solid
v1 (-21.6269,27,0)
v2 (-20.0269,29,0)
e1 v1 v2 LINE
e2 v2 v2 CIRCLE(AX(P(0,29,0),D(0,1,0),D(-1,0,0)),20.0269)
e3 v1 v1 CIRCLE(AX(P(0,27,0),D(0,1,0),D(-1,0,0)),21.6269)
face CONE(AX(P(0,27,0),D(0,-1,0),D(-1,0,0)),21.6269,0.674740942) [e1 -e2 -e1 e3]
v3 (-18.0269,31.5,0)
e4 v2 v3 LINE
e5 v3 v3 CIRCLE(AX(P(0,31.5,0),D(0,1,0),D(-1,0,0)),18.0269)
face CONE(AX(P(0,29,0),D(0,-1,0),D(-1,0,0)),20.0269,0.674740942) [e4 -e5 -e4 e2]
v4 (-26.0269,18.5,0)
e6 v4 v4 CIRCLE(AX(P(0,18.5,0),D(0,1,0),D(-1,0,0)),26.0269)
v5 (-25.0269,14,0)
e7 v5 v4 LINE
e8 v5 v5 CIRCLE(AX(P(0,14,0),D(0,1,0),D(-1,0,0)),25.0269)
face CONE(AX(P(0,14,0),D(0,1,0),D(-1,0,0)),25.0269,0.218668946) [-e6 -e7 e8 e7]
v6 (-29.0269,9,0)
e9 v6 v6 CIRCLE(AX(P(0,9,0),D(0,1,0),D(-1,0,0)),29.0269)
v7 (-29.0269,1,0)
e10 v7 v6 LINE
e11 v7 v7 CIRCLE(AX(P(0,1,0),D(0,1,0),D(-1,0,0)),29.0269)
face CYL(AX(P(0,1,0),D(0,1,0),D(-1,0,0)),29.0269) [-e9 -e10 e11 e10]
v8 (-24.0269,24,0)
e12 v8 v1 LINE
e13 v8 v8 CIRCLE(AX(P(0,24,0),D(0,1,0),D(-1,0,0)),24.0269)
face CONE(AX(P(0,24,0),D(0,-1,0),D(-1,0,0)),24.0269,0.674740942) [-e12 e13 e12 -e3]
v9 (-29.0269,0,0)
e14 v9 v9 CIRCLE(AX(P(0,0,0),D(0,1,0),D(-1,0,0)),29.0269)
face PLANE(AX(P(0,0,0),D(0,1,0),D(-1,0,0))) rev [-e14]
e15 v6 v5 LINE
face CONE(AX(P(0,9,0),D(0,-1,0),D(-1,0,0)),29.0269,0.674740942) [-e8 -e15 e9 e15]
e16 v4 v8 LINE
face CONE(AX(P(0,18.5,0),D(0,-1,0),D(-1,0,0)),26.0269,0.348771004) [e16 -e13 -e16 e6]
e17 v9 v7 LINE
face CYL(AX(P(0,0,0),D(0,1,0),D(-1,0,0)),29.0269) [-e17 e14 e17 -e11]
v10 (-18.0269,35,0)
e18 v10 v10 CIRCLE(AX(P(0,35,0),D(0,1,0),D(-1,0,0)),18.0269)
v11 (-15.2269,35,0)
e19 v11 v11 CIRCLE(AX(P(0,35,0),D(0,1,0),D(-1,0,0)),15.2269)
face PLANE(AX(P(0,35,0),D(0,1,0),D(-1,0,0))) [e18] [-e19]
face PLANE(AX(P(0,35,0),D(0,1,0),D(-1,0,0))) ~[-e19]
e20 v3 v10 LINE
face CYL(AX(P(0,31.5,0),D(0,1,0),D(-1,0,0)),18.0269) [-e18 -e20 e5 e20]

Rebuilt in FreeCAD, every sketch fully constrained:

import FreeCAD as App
import Part
import Sketcher
Q = App.Units.Quantity

doc = App.newDocument("Part")
body = doc.addObject("PartDesign::Body", "Body")

# Sketch on XY plane
sketch1 = body.newObject("Sketcher::SketchObject", "Sketch")
sketch1.AttachmentSupport = (doc.getObject("XY_Plane"), [""])
sketch1.MapMode = "FlatFace"
sketch1.addGeometry([
    Part.LineSegment(App.Vector(-29, 0, 0), App.Vector(0, 0, 0)),  # 0
    Part.LineSegment(App.Vector(0, 0, 0), App.Vector(0, 35, 0)),  # 1
    Part.LineSegment(App.Vector(0, 35, 0), App.Vector(-18, 35, 0)),  # 2
    Part.LineSegment(App.Vector(-18, 35, 0), App.Vector(-18, 31.5, 0)),  # 3
    Part.LineSegment(App.Vector(-18, 31.5, 0), App.Vector(-24, 24, 0)),  # 4
    Part.LineSegment(App.Vector(-24, 24, 0), App.Vector(-26, 18.5, 0)),  # 5
    Part.LineSegment(App.Vector(-26, 18.5, 0), App.Vector(-25, 14, 0)),  # 6
    Part.LineSegment(App.Vector(-25, 14, 0), App.Vector(-29, 9, 0)),  # 7
    Part.LineSegment(App.Vector(-29, 9, 0), App.Vector(-29, 0, 0)),  # 8
], False)
sketch1.addConstraint([
    Sketcher.Constraint("Coincident", 0, 2, 1, 1),
    Sketcher.Constraint("Coincident", 1, 2, 2, 1),
    Sketcher.Constraint("Coincident", 2, 2, 3, 1),
    Sketcher.Constraint("Coincident", 3, 2, 4, 1),
    Sketcher.Constraint("Coincident", 4, 2, 5, 1),
    Sketcher.Constraint("Coincident", 5, 2, 6, 1),
    Sketcher.Constraint("Coincident", 6, 2, 7, 1),
    Sketcher.Constraint("Coincident", 7, 2, 8, 1),
    Sketcher.Constraint("Coincident", 8, 2, 0, 1),
    Sketcher.Constraint("Horizontal", 0),
    Sketcher.Constraint("Vertical", 1),
    Sketcher.Constraint("Horizontal", 2),
    Sketcher.Constraint("Vertical", 3),
    Sketcher.Constraint("Vertical", 8),
    Sketcher.Constraint("Coincident", 0, 2, -1, 1),
    Sketcher.Constraint("Parallel", 4, 7),
    Sketcher.Constraint("DistanceY", 1, 1, 1, 2, Q("35 mm")),
    Sketcher.Constraint("DistanceY", 8, 2, 8, 1, Q("9 mm")),
    Sketcher.Constraint("DistanceY", 3, 2, 3, 1, Q("3.5 mm")),
    Sketcher.Constraint("DistanceY", -1, 1, 4, 2, Q("24 mm")),
    Sketcher.Constraint("DistanceY", -1, 1, 6, 2, Q("14 mm")),
    Sketcher.Constraint("DistanceX", 4, 2, 3, 2, Q("6 mm")),
    Sketcher.Constraint("DistanceX", 5, 2, 4, 2, Q("2 mm")),
    Sketcher.Constraint("DistanceY", 5, 2, 3, 2, Q("13 mm")),
    Sketcher.Constraint("DistanceX", 5, 2, 6, 2, Q("1 mm")),
    Sketcher.Constraint("DistanceX", 0, 1, 0, 2, Q("29.027 mm")),
])
revolution = body.newObject("PartDesign::Revolution", "Revolution")
revolution.Profile = sketch1
revolution.ReferenceAxis = (sketch1, ["V_Axis"])
revolution.Angle = 360

doc.recompute()
